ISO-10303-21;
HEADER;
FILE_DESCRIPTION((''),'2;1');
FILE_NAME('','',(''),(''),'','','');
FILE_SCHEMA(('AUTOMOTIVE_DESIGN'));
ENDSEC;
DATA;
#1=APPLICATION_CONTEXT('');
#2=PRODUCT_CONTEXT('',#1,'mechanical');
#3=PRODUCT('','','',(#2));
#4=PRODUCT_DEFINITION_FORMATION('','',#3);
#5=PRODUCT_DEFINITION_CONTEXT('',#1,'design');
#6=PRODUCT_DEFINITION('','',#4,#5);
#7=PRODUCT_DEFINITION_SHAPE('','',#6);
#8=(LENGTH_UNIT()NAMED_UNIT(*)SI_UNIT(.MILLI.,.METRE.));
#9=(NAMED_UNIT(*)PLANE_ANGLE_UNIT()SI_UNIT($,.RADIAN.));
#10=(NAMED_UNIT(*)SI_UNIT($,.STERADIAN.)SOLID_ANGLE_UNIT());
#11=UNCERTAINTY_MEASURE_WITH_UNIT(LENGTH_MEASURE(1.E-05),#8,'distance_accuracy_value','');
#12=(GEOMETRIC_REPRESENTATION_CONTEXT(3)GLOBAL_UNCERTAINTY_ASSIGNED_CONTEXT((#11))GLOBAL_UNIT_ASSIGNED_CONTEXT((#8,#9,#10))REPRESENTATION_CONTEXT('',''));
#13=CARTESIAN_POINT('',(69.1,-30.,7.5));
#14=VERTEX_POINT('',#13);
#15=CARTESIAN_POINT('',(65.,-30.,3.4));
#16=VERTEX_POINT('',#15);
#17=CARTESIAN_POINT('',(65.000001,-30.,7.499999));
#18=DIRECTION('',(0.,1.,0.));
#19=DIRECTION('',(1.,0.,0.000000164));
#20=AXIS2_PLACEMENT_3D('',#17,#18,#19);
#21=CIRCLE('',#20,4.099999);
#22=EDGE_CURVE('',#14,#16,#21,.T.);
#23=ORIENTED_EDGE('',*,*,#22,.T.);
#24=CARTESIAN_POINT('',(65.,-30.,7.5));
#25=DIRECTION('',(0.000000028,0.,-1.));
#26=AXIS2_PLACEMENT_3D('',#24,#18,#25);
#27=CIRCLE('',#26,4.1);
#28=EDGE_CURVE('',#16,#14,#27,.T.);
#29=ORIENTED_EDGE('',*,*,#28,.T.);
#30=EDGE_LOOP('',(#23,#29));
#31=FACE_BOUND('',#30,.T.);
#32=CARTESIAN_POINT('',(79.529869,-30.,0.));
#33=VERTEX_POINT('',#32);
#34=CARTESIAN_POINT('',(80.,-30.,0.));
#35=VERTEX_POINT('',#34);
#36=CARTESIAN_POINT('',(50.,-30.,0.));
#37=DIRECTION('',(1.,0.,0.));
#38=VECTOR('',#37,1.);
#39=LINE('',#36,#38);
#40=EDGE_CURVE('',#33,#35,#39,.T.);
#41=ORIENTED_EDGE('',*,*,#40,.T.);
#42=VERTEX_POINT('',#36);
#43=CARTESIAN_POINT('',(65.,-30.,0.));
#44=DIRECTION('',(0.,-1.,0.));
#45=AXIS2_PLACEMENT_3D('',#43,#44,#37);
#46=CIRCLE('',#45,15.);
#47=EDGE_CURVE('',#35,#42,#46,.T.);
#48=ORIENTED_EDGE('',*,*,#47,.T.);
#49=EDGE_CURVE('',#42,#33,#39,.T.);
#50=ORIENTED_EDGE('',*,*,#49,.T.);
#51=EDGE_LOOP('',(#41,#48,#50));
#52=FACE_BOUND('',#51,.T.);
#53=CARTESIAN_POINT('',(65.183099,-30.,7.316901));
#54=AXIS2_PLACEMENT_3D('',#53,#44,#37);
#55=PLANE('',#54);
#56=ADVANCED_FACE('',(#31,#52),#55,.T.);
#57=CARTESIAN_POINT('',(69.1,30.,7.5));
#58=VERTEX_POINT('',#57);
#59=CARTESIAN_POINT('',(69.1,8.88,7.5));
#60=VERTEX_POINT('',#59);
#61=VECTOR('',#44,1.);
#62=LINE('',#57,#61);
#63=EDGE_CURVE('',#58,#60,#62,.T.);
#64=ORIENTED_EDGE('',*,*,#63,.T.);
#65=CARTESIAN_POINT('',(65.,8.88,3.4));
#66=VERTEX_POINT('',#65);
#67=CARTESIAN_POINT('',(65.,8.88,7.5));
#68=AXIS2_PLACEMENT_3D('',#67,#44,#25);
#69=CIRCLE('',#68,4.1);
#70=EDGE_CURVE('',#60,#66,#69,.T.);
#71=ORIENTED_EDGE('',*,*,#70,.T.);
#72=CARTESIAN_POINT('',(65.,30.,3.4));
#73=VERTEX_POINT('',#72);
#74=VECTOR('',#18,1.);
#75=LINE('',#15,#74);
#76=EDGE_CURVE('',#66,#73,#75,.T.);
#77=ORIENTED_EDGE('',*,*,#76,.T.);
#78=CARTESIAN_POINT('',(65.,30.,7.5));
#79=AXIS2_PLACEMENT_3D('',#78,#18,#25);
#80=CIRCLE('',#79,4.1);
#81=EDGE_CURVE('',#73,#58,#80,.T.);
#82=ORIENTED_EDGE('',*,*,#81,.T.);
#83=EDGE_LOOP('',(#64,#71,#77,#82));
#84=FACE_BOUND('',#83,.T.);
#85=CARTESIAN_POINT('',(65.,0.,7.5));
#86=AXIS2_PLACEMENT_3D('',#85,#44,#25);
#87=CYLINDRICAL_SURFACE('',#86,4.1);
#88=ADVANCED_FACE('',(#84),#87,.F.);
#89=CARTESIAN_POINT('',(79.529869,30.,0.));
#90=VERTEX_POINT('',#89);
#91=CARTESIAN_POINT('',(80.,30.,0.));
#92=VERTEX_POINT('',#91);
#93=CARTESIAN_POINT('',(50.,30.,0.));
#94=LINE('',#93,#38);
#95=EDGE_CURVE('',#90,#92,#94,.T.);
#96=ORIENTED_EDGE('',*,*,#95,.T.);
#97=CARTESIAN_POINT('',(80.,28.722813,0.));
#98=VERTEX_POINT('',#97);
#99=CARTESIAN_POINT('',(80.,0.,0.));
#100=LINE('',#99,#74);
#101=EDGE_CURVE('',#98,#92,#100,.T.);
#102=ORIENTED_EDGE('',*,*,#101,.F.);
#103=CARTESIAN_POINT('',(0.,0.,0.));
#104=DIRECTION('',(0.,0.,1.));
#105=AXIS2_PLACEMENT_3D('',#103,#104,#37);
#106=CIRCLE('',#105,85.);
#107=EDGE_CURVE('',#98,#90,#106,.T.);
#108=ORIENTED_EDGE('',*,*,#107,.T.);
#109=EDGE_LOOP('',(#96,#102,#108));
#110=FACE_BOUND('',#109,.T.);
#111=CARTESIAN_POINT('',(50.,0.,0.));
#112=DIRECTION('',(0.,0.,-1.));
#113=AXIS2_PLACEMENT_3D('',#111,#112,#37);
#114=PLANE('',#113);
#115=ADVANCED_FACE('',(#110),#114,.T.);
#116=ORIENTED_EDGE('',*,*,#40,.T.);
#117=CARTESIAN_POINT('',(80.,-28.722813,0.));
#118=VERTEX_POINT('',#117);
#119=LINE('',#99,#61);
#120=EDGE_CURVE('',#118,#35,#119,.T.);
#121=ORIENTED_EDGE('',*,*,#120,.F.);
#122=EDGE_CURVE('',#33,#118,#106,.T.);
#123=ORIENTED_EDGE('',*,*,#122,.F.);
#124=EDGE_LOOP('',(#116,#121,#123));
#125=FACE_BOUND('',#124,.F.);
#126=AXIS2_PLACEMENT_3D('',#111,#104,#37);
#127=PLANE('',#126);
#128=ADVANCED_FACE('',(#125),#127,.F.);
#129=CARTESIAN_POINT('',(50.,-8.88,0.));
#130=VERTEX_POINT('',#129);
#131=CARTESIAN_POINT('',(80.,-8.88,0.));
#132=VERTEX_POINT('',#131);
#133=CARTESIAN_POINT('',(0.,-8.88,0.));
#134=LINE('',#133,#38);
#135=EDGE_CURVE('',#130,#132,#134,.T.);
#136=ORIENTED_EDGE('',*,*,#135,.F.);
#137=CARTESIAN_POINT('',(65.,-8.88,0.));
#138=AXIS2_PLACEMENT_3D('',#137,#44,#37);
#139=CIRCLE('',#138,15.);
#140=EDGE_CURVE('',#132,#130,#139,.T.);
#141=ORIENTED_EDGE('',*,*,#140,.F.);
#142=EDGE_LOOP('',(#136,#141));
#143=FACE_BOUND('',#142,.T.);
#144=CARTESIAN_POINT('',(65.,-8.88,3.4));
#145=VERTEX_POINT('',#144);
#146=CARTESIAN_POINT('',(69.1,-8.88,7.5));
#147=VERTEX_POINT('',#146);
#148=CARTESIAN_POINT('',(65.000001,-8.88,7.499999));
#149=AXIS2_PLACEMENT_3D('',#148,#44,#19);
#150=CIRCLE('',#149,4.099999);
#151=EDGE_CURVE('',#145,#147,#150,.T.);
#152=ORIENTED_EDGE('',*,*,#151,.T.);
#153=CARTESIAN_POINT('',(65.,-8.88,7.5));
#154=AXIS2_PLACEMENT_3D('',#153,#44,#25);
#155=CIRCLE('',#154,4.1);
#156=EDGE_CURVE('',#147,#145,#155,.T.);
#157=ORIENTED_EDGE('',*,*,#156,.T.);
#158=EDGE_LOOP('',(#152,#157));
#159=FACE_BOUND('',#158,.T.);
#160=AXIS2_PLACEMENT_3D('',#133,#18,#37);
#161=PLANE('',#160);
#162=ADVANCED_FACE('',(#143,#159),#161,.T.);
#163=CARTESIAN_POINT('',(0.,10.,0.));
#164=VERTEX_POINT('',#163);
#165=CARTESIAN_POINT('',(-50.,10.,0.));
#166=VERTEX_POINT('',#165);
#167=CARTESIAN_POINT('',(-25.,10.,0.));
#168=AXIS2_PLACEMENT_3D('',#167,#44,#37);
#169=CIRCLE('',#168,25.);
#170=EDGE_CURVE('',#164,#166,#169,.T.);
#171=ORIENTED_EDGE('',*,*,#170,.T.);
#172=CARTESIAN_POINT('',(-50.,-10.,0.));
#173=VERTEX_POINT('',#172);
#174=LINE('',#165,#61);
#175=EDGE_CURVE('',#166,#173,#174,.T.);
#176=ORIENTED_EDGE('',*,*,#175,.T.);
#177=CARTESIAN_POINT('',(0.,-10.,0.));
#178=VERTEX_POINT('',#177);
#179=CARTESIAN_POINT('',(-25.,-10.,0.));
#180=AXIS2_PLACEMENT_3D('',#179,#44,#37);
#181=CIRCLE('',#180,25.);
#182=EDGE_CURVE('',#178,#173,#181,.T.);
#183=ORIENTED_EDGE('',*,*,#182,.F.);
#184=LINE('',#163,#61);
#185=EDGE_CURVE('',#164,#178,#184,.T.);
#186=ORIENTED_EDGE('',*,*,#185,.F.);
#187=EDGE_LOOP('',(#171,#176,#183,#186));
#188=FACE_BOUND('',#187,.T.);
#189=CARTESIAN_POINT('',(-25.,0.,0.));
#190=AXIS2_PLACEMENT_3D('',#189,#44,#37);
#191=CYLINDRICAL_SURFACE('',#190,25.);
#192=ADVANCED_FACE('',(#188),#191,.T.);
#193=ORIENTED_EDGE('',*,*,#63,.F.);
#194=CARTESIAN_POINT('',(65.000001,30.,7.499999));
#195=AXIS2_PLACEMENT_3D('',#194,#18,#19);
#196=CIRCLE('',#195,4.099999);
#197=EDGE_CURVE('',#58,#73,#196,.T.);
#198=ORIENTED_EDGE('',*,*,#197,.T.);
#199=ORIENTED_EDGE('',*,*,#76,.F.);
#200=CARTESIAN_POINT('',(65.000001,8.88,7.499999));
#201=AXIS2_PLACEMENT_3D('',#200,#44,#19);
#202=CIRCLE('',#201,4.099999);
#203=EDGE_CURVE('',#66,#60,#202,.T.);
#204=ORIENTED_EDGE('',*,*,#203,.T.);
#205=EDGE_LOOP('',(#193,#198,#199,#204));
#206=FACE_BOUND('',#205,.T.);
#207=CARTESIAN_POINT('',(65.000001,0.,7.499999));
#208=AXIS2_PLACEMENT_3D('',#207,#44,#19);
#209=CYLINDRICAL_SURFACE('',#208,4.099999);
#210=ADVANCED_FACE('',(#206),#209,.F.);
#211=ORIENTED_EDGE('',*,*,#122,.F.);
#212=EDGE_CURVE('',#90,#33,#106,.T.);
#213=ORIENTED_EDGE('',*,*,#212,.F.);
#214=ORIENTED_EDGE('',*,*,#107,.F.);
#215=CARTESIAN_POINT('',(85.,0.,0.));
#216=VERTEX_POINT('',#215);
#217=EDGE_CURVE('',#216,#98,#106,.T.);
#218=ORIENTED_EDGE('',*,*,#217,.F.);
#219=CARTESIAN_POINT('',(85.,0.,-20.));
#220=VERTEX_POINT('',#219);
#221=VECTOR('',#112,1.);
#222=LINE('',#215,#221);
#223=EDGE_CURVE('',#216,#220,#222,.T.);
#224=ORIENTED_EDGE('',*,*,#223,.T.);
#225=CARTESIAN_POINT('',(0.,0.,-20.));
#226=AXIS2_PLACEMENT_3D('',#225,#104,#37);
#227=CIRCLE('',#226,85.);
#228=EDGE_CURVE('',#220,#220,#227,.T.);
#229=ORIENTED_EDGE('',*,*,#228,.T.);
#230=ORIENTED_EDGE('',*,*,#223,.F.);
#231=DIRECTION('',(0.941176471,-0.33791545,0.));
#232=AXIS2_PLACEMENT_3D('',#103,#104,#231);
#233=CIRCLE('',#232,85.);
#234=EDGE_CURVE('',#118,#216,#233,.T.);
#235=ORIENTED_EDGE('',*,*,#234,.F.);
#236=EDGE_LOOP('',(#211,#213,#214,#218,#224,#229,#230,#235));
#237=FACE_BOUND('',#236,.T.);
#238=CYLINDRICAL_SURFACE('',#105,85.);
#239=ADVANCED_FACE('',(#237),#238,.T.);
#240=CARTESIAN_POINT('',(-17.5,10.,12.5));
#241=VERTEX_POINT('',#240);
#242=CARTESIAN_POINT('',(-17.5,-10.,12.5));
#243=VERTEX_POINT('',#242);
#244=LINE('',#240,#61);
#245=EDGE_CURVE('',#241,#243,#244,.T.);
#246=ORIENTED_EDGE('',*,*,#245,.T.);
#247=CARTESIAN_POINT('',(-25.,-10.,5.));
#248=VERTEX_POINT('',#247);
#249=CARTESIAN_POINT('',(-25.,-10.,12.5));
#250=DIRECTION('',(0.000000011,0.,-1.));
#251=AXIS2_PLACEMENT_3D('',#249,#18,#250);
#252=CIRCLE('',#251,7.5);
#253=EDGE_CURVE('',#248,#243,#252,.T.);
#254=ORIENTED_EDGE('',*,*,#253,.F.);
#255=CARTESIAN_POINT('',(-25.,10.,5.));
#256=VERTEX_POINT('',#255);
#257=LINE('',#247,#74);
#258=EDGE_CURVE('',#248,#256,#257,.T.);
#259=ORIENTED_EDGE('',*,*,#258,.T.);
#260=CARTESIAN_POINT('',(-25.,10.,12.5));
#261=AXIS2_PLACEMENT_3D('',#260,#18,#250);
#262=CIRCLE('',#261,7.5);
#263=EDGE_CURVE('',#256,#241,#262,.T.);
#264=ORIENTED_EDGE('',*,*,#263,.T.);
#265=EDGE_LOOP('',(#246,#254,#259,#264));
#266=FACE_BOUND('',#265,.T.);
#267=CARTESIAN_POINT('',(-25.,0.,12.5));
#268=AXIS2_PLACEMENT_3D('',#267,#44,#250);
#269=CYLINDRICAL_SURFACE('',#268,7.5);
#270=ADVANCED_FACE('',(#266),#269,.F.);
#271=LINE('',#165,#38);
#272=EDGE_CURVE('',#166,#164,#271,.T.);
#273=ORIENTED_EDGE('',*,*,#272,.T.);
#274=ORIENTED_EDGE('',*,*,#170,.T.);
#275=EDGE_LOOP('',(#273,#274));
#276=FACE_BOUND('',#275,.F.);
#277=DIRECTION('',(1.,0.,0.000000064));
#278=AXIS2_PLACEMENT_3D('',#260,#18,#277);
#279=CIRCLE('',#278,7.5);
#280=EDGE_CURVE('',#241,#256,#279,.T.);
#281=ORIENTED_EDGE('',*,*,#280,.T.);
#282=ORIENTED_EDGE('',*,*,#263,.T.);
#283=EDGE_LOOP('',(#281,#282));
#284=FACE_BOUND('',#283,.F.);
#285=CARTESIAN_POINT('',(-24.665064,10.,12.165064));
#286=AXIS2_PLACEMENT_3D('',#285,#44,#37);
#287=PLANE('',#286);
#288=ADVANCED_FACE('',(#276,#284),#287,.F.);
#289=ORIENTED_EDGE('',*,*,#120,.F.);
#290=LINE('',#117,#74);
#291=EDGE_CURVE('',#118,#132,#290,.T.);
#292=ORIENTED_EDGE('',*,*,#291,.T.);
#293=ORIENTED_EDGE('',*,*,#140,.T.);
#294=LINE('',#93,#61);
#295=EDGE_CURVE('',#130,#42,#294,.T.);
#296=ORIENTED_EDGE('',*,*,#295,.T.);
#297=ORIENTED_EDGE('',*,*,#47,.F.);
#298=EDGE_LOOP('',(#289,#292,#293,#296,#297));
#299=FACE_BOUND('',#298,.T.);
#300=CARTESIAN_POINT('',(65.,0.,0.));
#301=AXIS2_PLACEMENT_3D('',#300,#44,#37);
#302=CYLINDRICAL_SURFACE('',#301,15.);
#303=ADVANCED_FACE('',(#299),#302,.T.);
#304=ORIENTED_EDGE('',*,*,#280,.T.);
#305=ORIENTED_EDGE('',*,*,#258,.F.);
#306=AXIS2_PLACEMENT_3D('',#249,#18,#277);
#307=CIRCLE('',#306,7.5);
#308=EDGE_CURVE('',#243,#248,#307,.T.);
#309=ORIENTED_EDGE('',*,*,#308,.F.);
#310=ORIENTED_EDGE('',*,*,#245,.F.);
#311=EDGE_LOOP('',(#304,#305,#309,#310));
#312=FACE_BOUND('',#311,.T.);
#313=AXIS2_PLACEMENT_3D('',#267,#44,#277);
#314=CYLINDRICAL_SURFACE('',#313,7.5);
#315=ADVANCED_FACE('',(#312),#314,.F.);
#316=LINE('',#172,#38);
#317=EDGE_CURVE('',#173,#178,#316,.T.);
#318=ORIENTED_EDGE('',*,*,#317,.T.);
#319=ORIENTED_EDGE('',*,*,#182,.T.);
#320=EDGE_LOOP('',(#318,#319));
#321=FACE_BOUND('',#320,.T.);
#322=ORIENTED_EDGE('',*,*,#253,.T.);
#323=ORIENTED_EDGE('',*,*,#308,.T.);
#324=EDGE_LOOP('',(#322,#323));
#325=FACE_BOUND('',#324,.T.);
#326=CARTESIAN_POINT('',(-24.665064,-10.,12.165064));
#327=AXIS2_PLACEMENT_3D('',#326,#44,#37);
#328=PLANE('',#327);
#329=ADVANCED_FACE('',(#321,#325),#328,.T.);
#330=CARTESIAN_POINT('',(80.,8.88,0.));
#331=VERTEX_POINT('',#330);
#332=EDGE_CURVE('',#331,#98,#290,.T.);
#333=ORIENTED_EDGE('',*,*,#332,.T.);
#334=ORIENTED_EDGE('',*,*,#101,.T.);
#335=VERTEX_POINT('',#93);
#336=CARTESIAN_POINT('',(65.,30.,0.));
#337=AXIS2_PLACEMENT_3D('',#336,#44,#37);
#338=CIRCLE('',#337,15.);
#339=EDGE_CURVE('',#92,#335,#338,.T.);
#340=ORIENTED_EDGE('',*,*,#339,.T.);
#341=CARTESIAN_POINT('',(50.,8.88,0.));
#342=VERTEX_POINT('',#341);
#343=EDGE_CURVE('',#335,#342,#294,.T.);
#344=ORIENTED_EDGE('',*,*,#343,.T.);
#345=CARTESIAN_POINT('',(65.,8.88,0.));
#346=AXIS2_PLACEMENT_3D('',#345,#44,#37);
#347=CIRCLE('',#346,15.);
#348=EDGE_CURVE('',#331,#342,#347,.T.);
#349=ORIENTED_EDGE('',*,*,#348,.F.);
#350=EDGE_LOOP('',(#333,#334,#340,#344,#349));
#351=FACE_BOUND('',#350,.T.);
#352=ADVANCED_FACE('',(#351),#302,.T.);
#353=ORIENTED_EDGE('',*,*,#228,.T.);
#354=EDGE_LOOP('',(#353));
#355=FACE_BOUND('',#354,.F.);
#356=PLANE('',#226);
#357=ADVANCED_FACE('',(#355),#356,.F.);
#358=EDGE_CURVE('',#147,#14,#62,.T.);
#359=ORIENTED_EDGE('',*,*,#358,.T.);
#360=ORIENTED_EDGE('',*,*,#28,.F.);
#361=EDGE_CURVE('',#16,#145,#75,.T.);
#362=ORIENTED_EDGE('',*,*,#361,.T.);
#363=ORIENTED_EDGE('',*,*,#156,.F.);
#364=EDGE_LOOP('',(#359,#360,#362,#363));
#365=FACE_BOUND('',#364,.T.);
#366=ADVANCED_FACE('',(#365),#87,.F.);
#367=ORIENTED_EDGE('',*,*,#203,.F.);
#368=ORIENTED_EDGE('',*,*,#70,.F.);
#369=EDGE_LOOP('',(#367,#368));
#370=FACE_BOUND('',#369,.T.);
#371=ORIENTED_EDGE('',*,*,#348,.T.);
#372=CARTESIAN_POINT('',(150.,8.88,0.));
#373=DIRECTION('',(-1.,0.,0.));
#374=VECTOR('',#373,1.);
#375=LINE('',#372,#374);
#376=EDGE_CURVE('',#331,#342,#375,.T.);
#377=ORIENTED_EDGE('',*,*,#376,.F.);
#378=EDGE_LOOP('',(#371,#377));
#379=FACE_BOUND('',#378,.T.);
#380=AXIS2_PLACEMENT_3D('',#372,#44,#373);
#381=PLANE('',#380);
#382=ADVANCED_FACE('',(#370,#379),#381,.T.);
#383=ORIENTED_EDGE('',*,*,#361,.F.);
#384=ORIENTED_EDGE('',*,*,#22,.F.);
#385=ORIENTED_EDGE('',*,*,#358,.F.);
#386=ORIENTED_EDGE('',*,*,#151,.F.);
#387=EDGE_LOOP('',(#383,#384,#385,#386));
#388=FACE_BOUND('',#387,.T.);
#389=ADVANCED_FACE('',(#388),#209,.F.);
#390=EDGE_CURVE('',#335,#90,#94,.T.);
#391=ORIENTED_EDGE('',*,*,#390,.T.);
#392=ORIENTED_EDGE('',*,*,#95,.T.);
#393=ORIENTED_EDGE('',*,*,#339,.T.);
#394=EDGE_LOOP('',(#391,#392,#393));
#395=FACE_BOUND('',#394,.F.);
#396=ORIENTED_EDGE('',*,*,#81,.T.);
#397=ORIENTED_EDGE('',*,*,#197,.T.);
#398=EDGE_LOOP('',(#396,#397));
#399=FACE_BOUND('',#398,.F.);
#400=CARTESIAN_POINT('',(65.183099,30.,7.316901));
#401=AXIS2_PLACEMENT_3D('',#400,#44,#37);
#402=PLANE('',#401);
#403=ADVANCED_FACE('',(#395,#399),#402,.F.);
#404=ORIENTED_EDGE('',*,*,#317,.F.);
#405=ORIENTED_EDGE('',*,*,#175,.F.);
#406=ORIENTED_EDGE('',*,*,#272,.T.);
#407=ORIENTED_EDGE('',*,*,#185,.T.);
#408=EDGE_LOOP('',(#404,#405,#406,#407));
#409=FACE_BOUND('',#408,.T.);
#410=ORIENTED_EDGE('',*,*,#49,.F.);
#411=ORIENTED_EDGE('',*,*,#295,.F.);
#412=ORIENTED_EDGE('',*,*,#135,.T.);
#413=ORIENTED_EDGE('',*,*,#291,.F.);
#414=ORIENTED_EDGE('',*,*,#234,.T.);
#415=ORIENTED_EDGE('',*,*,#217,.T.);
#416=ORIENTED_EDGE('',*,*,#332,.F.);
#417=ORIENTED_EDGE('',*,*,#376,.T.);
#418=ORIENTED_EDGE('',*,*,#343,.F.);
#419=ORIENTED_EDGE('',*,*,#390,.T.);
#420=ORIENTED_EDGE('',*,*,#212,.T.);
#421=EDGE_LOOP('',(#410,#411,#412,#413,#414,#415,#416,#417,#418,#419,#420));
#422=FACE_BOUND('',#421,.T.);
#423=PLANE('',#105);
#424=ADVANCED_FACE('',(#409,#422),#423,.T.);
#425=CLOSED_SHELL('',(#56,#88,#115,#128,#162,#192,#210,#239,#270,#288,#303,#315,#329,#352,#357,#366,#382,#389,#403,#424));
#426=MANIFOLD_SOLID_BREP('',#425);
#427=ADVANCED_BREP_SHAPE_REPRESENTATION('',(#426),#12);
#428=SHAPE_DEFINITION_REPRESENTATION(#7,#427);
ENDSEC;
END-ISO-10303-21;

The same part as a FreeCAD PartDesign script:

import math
import FreeCAD as App
import Part
import Sketcher
from FreeCAD import Vector

doc = App.newDocument("Part")
params = doc.addObject("Spreadsheet::Sheet", "Params")
for row, (alias, value) in enumerate([
    ("sketch1_diameter", "170 mm"),
    ("pad1_length", "20 mm"),
    ("sketch2_radius", "25 mm"),
    ("sketch2_radius2", "7.5 mm"),
    ("pad2_length", "10 mm"),
    ("pad2_length2", "10 mm"),
    ("sketch3_radius", "15 mm"),
    ("sketch3_radius2", "4.1 mm"),
    ("pad3_length", "30 mm"),
    ("pad3_length2", "30 mm"),
    ("sketch4_width", "150 mm"),
    ("sketch4_height", "17.76 mm"),
    ("pocket1_length", "25 mm"),
], start=1):
    params.set(f"A{row}", alias)
    params.set(f"B{row}", "=" + value)
    params.setAlias(f"B{row}", alias)

body = doc.addObject("PartDesign::Body", "Body")

# Sketch on XY plane
sketch1 = doc.addObject("Sketcher::SketchObject", "Sketch")
body.addObject(sketch1)
sketch1.AttachmentSupport = (doc.XY_Plane, [""])
sketch1.MapMode = "FlatFace"
sketch1.addGeometry(Part.Circle(Vector(0, 0, 0), Vector(0, 0, 1), 85), False)
sketch1.addConstraint([
    Sketcher.Constraint("Coincident", 0, 3, -1, 1),
    Sketcher.Constraint("Diameter", 0, 170.0),
])
sketch1.setExpression("Constraints[1]", "Params.sketch1_diameter")
pad1 = doc.addObject("PartDesign::Pad", "Pad")
body.addObject(pad1)
pad1.Profile = sketch1
pad1.setExpression("Length", "Params.pad1_length")
pad1.Reversed = True

# Sketch on XZ plane
sketch2 = doc.addObject("Sketcher::SketchObject", "Sketch001")
body.addObject(sketch2)
sketch2.AttachmentSupport = (doc.XZ_Plane, [""])
sketch2.MapMode = "FlatFace"
sketch2.addGeometry([
    Part.ArcOfCircle(Part.Circle(Vector(-25, 0, 0), Vector(0, 0, 1), 25), math.radians(0), math.radians(180)),
    Part.LineSegment(Vector(-50, 0, 0), Vector(0, 0, 0)),
    Part.ArcOfCircle(Part.Circle(Vector(-25, 13, 0), Vector(0, 0, 1), 8), math.radians(0), math.radians(270)),
    Part.ArcOfCircle(Part.Circle(Vector(-25, 12, 0), Vector(0, 0, 1), 7), math.radians(-90), math.radians(0)),
], False)
sketch2.addConstraint([
    Sketcher.Constraint("Coincident", 0, 1, 1, 2),
    Sketcher.Constraint("Coincident", 1, 1, 0, 2),
    Sketcher.Constraint("Tangent", 2, 1, 3, 2),
    Sketcher.Constraint("Coincident", 3, 1, 2, 2),
    Sketcher.Constraint("Horizontal", 1),
    Sketcher.Constraint("Coincident", 0, 1, -1, 1),
    Sketcher.Constraint("PointOnObject", 0, 3, -1),
    Sketcher.Constraint("Horizontal", 3, 3, 2, 1),
    Sketcher.Constraint("Vertical", 0, 3, 2, 3),
    Sketcher.Constraint("Vertical", 2, 3, 3, 1),
    Sketcher.Constraint("Radius", 0, 25.0),
    Sketcher.Constraint("Radius", 2, 7.5),
    Sketcher.Constraint("DistanceY", -1, 1, 3, 1, 5.0),
])
sketch2.setExpression("Constraints[10]", "Params.sketch2_radius")
sketch2.setExpression("Constraints[11]", "Params.sketch2_radius2")
pad2 = doc.addObject("PartDesign::Pad", "Pad001")
body.addObject(pad2)
pad2.Profile = sketch2
pad2.Type = "TwoLengths"
pad2.setExpression("Length", "Params.pad2_length")
pad2.setExpression("Length2", "Params.pad2_length2")

# Sketch on XZ plane
sketch3 = doc.addObject("Sketcher::SketchObject", "Sketch002")
body.addObject(sketch3)
sketch3.AttachmentSupport = (doc.XZ_Plane, [""])
sketch3.MapMode = "FlatFace"
sketch3.addGeometry([
    Part.ArcOfCircle(Part.Circle(Vector(65, 0, 0), Vector(0, 0, 1), 15), math.radians(0), math.radians(180)),
    Part.LineSegment(Vector(50, 0, 0), Vector(80, 0, 0)),
    Part.ArcOfCircle(Part.Circle(Vector(65, 7.5, 0), Vector(0, 0, 1), 4.1), math.radians(0), math.radians(270)),
    Part.ArcOfCircle(Part.Circle(Vector(65, 7.5, 0), Vector(0, 0, 1), 4.1), math.radians(-90), math.radians(0)),
], False)
sketch3.addConstraint([
    Sketcher.Constraint("Coincident", 0, 1, 1, 2),
    Sketcher.Constraint("Coincident", 1, 1, 0, 2),
    Sketcher.Constraint("Tangent", 2, 1, 3, 2),
    Sketcher.Constraint("Coincident", 3, 1, 2, 2),
    Sketcher.Constraint("Horizontal", 1),
    Sketcher.Constraint("PointOnObject", 0, 3, -1),
    Sketcher.Constraint("PointOnObject", 0, 1, -1),
    Sketcher.Constraint("Horizontal", 3, 3, 2, 1),
    Sketcher.Constraint("Vertical", 0, 3, 2, 3),
    Sketcher.Constraint("Vertical", 2, 3, 3, 1),
    Sketcher.Constraint("Radius", 0, 15.0),
    Sketcher.Constraint("Radius", 2, 4.1),
    Sketcher.Constraint("DistanceX", -1, 1, 0, 3, 65.0),
    Sketcher.Constraint("DistanceY", -1, 1, 2, 3, 7.5),
])
sketch3.setExpression("Constraints[10]", "Params.sketch3_radius")
sketch3.setExpression("Constraints[11]", "Params.sketch3_radius2")
pad3 = doc.addObject("PartDesign::Pad", "Pad002")
body.addObject(pad3)
pad3.Profile = sketch3
pad3.Type = "TwoLengths"
pad3.setExpression("Length", "Params.pad3_length")
pad3.setExpression("Length2", "Params.pad3_length2")

# Sketch on XY plane
sketch4 = doc.addObject("Sketcher::SketchObject", "Sketch003")
body.addObject(sketch4)
sketch4.AttachmentSupport = (doc.XY_Plane, [""])
sketch4.MapMode = "FlatFace"
sketch4.addGeometry([
    Part.LineSegment(Vector(0, 9, 0), Vector(0, -9, 0)),
    Part.LineSegment(Vector(0, -9, 0), Vector(150, -9, 0)),
    Part.LineSegment(Vector(150, -9, 0), Vector(150, 9, 0)),
    Part.LineSegment(Vector(150, 9, 0), Vector(0, 9, 0)),
], False)
sketch4.addConstraint([
    Sketcher.Constraint("Coincident", 0, 2, 1, 1),
    Sketcher.Constraint("Coincident", 1, 2, 2, 1),
    Sketcher.Constraint("Coincident", 2, 2, 3, 1),
    Sketcher.Constraint("Coincident", 3, 2, 0, 1),
    Sketcher.Constraint("Vertical", 0),
    Sketcher.Constraint("Horizontal", 1),
    Sketcher.Constraint("Vertical", 2),
    Sketcher.Constraint("Horizontal", 3),
    Sketcher.Constraint("Symmetric", 0, 2, 3, 2, -1, 1),
    Sketcher.Constraint("DistanceX", 1, 1, 1, 2, 150.0),
    Sketcher.Constraint("DistanceY", 0, 2, 0, 1, 17.76),
])
sketch4.setExpression("Constraints[9]", "Params.sketch4_width")
sketch4.setExpression("Constraints[10]", "Params.sketch4_height")
pocket1 = doc.addObject("PartDesign::Pocket", "Pocket")
body.addObject(pocket1)
pocket1.Profile = sketch4
pocket1.setExpression("Length", "Params.pocket1_length")
pocket1.Reversed = True

doc.recompute()
